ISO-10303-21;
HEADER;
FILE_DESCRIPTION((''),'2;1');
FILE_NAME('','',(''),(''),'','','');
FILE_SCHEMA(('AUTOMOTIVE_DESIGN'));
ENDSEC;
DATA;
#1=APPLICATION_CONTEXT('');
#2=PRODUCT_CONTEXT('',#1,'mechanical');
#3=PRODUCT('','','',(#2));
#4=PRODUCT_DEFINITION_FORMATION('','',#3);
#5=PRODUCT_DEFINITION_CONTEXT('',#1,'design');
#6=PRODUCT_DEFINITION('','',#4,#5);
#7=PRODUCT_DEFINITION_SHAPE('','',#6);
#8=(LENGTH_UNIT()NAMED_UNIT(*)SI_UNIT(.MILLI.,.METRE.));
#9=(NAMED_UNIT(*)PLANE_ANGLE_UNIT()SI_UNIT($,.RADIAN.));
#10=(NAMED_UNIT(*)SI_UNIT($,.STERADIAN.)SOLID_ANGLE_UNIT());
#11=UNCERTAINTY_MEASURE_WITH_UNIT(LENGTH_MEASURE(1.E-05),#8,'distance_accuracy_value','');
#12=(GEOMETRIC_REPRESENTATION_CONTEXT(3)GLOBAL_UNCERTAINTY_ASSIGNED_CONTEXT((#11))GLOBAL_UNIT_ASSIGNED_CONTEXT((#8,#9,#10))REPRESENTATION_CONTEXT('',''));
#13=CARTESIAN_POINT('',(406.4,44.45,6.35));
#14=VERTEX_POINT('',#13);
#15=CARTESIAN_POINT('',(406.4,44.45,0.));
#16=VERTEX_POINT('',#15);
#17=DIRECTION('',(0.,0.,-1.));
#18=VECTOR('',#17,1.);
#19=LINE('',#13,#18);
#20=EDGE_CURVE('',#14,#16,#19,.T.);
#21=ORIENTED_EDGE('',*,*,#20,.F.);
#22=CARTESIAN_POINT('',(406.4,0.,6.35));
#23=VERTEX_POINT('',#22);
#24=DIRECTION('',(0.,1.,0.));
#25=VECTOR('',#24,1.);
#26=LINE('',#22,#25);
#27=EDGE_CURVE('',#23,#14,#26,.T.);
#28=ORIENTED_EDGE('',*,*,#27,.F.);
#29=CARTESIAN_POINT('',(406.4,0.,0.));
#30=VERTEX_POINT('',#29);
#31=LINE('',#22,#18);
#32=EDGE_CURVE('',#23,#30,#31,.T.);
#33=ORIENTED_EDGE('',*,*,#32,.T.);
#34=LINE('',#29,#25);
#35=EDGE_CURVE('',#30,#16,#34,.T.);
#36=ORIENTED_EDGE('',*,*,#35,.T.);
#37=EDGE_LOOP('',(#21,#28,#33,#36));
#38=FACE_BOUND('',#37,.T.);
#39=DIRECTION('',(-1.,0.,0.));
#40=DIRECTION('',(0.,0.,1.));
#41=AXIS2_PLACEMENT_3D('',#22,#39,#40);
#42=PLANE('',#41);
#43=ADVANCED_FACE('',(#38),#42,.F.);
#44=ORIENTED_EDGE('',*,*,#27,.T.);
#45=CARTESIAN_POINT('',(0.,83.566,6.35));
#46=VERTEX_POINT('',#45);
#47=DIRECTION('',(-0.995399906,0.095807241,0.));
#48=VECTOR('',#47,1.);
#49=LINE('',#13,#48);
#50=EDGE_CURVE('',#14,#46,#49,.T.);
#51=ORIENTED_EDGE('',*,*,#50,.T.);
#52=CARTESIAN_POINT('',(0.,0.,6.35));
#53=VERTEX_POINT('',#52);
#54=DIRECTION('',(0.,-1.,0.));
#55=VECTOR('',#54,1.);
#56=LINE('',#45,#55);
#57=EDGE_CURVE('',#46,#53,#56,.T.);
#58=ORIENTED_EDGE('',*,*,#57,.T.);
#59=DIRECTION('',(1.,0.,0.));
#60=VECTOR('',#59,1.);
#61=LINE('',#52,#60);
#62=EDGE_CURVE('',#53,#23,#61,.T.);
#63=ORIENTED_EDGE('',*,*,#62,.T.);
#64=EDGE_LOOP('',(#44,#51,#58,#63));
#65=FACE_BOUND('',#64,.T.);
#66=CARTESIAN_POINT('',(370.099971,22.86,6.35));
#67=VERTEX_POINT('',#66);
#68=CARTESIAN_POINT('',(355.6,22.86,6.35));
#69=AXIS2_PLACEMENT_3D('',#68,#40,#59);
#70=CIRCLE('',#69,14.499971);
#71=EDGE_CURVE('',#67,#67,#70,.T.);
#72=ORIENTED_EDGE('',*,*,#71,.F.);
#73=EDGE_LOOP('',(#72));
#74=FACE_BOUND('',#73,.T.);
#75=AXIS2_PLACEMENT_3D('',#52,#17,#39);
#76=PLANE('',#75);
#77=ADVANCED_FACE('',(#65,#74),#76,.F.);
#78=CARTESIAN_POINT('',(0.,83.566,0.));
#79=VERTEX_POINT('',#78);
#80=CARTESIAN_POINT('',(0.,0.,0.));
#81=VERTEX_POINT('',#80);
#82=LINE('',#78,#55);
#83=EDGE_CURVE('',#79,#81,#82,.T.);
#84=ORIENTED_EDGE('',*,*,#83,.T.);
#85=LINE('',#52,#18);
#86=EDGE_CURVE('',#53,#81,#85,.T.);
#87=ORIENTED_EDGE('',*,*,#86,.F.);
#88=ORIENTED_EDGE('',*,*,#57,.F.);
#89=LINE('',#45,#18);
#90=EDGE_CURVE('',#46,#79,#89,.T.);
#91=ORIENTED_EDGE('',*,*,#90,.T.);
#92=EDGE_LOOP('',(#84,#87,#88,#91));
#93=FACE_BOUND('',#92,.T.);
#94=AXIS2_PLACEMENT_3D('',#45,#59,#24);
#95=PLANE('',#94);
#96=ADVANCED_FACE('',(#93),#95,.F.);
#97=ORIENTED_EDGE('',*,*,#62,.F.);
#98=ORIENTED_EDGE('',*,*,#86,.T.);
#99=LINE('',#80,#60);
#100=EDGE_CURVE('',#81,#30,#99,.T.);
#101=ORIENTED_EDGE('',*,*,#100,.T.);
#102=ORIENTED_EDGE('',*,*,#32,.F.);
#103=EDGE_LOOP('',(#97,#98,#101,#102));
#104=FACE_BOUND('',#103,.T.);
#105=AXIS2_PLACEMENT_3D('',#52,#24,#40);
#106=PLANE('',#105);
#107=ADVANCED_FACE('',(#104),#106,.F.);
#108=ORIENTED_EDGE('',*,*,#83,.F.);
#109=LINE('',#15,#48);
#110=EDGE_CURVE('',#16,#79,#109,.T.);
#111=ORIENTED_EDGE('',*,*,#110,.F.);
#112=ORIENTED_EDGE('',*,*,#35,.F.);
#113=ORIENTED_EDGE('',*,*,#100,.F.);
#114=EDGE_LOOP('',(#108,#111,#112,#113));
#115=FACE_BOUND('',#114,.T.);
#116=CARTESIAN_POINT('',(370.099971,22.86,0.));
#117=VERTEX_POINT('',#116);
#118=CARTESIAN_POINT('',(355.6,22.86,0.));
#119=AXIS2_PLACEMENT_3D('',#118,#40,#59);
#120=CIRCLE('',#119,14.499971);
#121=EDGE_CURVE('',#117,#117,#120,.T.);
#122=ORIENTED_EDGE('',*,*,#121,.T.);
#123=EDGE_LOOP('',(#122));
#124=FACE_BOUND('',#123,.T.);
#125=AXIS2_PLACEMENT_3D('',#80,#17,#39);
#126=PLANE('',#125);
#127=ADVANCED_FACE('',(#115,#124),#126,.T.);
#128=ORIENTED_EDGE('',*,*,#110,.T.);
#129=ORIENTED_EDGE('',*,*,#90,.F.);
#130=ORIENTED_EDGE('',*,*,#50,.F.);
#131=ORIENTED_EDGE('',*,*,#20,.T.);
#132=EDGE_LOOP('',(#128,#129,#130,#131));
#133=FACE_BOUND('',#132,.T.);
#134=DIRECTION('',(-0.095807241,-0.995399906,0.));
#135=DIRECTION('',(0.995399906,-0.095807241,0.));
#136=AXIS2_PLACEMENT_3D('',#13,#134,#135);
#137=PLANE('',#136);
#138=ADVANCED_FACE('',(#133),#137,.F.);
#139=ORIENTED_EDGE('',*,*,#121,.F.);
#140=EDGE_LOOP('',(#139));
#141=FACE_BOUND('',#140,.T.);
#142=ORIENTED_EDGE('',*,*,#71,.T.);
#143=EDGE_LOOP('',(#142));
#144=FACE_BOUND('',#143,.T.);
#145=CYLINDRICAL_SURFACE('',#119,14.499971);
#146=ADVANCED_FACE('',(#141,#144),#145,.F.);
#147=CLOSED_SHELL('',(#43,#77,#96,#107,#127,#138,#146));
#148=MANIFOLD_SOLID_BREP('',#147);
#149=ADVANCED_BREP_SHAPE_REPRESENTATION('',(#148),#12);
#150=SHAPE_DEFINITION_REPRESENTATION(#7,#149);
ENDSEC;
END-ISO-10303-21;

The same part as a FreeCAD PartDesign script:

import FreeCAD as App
import Part
import Sketcher
from FreeCAD import Vector
Q = App.Units.Quantity


def add_polygon(sketch, points):
    """Adds a closed chain of lines whose ends are joined by coincident constraints."""
    first, n = sketch.GeometryCount, len(points)
    for a, b in zip(points, points[1:] + points[:1]):
        sketch.addGeometry(Part.LineSegment(App.Vector(*a, 0), App.Vector(*b, 0)), False)
    for i in range(n):
        sketch.addConstraint(Sketcher.Constraint("Coincident", first + i, 2, first + (i + 1) % n, 1))

doc = App.newDocument("Part")
params = doc.addObject("Spreadsheet::Sheet", "Params")
for row, (alias, value) in enumerate([
    ("sketch1_width", "16 in"),
    ("sketch1_height", "1.75 in"),
    ("sketch1_height2", "3.29 in"),
    ("pad1_length", "0.25 in"),
    ("pocket1_length", "0.25 in"),
], start=1):
    params.set(f"A{row}", alias)
    params.set(f"B{row}", "=" + value)
    params.setAlias(f"B{row}", alias)

body = doc.addObject("PartDesign::Body", "Body")

sketch1 = body.newObject("Sketcher::SketchObject", "Sketch")
sketch1.AttachmentSupport = (doc.getObject("XY_Plane"), [""])
sketch1.MapMode = "FlatFace"
add_polygon(sketch1, [(0, 0), (406, 0), (406, 44), (0, 84)])
sketch1.addConstraint([
    Sketcher.Constraint("Horizontal", 0),
    Sketcher.Constraint("Vertical", 1),
    Sketcher.Constraint("Vertical", 3),
    Sketcher.Constraint("Coincident", 3, 2, -1, 1),
    Sketcher.Constraint("DistanceX", 0, 1, 0, 2, Q("16 in")),
    Sketcher.Constraint("DistanceY", 1, 1, 1, 2, Q("1.75 in")),
    Sketcher.Constraint("DistanceY", 3, 2, 3, 1, Q("3.29 in")),
])
sketch1.setExpression("Constraints[8]", "Params.sketch1_width")
sketch1.setExpression("Constraints[9]", "Params.sketch1_height")
sketch1.setExpression("Constraints[10]", "Params.sketch1_height2")
pad1 = body.newObject("PartDesign::Pad", "Pad")
pad1.Profile = sketch1
pad1.setExpression("Length", "Params.pad1_length")

sketch2 = body.newObject("Sketcher::SketchObject", "Sketch001")
sketch2.AttachmentSupport = (doc.getObject("XY_Plane"), [""])
sketch2.MapMode = "FlatFace"
sketch2.AttachmentOffset = App.Placement(Vector(0, 0, 0.25 * 25.4), App.Rotation())
sketch2.addGeometry(Part.Circle(Vector(356, 23, 0), Vector(0, 0, 1), 14), False)
sketch2.addConstraint([
    Sketcher.Constraint("DistanceX", -1, 1, 0, 3, Q("14 in")),
    Sketcher.Constraint("DistanceY", -1, 1, 0, 3, Q("0.9 in")),
    Sketcher.Constraint("Diameter", 0, 28.999942),
])
pocket1 = body.newObject("PartDesign::Pocket", "Pocket")
pocket1.Profile = sketch2
pocket1.setExpression("Length", "Params.pocket1_length")

doc.recompute()
